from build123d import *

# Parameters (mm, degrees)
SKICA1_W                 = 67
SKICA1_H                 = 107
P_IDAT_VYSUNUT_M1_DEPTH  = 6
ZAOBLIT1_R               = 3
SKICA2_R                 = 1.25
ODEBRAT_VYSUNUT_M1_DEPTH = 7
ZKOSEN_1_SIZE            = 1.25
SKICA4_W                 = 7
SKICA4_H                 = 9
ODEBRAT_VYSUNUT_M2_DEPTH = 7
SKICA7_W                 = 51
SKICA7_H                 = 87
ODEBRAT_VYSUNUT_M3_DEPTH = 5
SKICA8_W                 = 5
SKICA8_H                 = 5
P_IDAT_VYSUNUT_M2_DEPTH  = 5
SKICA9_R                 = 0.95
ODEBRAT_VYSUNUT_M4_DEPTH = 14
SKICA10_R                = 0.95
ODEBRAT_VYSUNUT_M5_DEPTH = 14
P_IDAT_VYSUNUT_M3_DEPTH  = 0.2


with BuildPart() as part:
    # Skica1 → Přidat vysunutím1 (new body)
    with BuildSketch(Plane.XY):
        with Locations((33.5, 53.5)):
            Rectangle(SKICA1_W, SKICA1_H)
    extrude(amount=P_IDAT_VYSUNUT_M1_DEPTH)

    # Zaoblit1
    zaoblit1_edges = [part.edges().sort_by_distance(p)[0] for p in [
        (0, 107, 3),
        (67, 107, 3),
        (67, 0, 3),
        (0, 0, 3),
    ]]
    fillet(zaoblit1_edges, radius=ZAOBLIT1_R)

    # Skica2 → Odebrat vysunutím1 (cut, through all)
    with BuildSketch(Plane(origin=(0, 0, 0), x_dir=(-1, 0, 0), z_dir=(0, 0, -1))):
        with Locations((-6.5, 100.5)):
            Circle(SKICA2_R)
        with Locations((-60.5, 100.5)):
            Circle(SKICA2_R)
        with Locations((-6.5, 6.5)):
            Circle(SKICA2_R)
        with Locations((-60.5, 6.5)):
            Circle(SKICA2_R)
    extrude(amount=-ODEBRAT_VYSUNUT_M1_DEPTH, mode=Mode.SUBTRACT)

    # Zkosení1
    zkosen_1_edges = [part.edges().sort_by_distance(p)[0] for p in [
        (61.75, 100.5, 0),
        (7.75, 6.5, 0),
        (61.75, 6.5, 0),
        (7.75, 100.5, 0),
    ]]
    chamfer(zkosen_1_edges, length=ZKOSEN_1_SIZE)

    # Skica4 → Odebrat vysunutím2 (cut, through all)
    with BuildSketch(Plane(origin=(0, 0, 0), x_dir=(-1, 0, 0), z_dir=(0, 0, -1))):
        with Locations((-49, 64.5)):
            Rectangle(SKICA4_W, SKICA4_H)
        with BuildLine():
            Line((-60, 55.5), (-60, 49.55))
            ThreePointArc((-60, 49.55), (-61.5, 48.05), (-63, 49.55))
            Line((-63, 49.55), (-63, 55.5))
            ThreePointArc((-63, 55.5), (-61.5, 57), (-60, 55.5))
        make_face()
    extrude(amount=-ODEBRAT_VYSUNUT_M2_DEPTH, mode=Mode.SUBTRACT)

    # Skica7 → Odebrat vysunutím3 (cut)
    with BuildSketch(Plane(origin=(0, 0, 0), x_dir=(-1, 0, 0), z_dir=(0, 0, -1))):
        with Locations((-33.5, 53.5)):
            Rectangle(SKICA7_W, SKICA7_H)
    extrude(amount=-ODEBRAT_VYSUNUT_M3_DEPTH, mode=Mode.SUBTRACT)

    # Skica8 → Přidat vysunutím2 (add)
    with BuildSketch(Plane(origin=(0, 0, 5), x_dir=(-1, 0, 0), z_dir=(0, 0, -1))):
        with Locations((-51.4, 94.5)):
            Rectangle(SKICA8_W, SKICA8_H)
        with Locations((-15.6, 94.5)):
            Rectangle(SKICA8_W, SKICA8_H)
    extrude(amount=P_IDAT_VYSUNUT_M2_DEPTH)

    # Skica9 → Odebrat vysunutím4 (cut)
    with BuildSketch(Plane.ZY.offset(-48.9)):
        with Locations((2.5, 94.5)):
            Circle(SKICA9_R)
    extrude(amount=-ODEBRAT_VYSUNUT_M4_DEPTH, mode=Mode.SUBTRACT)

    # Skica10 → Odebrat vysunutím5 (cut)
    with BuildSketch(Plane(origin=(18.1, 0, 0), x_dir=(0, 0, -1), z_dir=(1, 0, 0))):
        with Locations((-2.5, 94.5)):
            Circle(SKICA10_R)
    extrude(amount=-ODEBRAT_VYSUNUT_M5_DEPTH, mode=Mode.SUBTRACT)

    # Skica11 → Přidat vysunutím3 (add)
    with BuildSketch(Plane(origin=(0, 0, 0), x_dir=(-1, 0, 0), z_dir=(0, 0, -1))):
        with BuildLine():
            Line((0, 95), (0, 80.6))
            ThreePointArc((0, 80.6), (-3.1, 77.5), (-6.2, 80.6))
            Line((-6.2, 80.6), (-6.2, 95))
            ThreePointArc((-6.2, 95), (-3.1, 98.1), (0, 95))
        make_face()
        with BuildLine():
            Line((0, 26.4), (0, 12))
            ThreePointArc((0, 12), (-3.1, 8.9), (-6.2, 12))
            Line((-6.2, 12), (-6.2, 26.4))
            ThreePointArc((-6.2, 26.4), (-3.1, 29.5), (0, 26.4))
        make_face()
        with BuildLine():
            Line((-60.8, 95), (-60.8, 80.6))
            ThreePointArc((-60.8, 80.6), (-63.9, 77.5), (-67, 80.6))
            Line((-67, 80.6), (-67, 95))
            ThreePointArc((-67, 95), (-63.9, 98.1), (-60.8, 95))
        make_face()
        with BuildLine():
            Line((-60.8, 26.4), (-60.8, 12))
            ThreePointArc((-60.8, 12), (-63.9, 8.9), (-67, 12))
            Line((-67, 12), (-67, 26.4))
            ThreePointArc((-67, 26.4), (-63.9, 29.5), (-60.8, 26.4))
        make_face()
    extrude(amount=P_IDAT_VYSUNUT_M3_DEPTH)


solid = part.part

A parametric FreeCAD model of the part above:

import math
import FreeCAD as App
import Part
import Sketcher

V = App.Vector


def edges_at(feature, points):
    """Names of the edges that pass closest to the given points."""
    edges = feature.Shape.Edges
    near = lambda p: min(range(len(edges)), key=lambda i: edges[i].distToShape(Part.Vertex(*p))[0])
    return sorted({f"Edge{near(p) + 1}" for p in points})

doc = App.newDocument("Part")
body = doc.addObject("PartDesign::Body", "Body")

sketch1 = body.newObject("Sketcher::SketchObject", "Sketch")
sketch1.AttachmentSupport = (doc.getObject("XY_Plane"), [""])
sketch1.MapMode = "FlatFace"
sketch1.addGeometry([
    Part.LineSegment(V(0, 107, 0), V(0, 0, 0)),
    Part.LineSegment(V(0, 0, 0), V(67, 0, 0)),
    Part.LineSegment(V(67, 0, 0), V(67, 107, 0)),
    Part.LineSegment(V(67, 107, 0), V(0, 107, 0)),
], False)
sketch1.addConstraint([
    Sketcher.Constraint("Coincident", 0, 2, 1, 1),
    Sketcher.Constraint("Coincident", 1, 2, 2, 1),
    Sketcher.Constraint("Coincident", 2, 2, 3, 1),
    Sketcher.Constraint("Coincident", 3, 2, 0, 1),
    Sketcher.Constraint("Vertical", 0),
    Sketcher.Constraint("Horizontal", 1),
    Sketcher.Constraint("Vertical", 2),
    Sketcher.Constraint("Horizontal", 3),
    Sketcher.Constraint("Coincident", 0, 2, -1, 1),
    Sketcher.Constraint("DistanceX", 1, 1, 1, 2, 67.0),
    Sketcher.Constraint("DistanceY", 0, 2, 0, 1, 107.0),
])
pad1 = body.newObject("PartDesign::Pad", "Pad")
pad1.Profile = sketch1
pad1.Length = 6
doc.recompute()

fillet = body.newObject("PartDesign::Fillet", "Fillet")
fillet.Base = (pad1, edges_at(pad1, [
    (0, 107, 3),
    (67, 107, 3),
    (67, 0, 3),
    (0, 0, 3),
]))
fillet.Radius = 3

sketch2 = body.newObject("Sketcher::SketchObject", "Sketch001")
sketch2.AttachmentSupport = (doc.getObject("XY_Plane"), [""])
sketch2.MapMode = "FlatFace"
sketch2.addGeometry([
    Part.Circle(V(6.5, 100.5, 0), V(0, 0, 1), 1.25),
    Part.Circle(V(60.5, 100.5, 0), V(0, 0, 1), 1.25),
    Part.Circle(V(6.5, 6.5, 0), V(0, 0, 1), 1.25),
    Part.Circle(V(60.5, 6.5, 0), V(0, 0, 1), 1.25),
], False)
sketch2.addConstraint([
    Sketcher.Constraint("Equal", 0, 1),
    Sketcher.Constraint("Equal", 1, 2),
    Sketcher.Constraint("Equal", 2, 3),
    Sketcher.Constraint("Horizontal", 0, 3, 1, 3),
    Sketcher.Constraint("Horizontal", 2, 3, 3, 3),
    Sketcher.Constraint("Vertical", 0, 3, 2, 3),
    Sketcher.Constraint("Vertical", 1, 3, 3, 3),
    Sketcher.Constraint("Diameter", 0, 2.5),
    Sketcher.Constraint("DistanceX", 0, 3, 1, 3, 54.0),
    Sketcher.Constraint("DistanceY", 2, 3, 0, 3, 94.0),
    Sketcher.Constraint("DistanceX", -1, 1, 0, 3, 6.5),
    Sketcher.Constraint("DistanceY", -1, 1, 0, 3, 100.5),
])
pocket1 = body.newObject("PartDesign::Pocket", "Pocket")
pocket1.Profile = sketch2
pocket1.Type = "ThroughAll"
pocket1.Reversed = True
doc.recompute()

chamfer = body.newObject("PartDesign::Chamfer", "Chamfer")
chamfer.Base = (pocket1, edges_at(pocket1, [
    (61.75, 100.5, 0),
    (7.75, 6.5, 0),
    (61.75, 6.5, 0),
    (7.75, 100.5, 0),
]))
chamfer.Size = 1.25

sketch3 = body.newObject("Sketcher::SketchObject", "Sketch002")
sketch3.AttachmentSupport = (doc.getObject("XY_Plane"), [""])
sketch3.MapMode = "FlatFace"
sketch3.addGeometry([
    Part.LineSegment(V(52.5, 69, 0), V(52.5, 60, 0)),
    Part.LineSegment(V(52.5, 60, 0), V(45.5, 60, 0)),
    Part.LineSegment(V(45.5, 60, 0), V(45.5, 69, 0)),
    Part.LineSegment(V(45.5, 69, 0), V(52.5, 69, 0)),
    Part.LineSegment(V(60, 49.55, 0), V(60, 55.5, 0)),
    Part.ArcOfCircle(Part.Circle(V(61.5, 55.5, 0), V(0, 0, 1), 1.5), math.radians(0), math.radians(180)),
    Part.LineSegment(V(63, 55.5, 0), V(63, 49.55, 0)),
    Part.ArcOfCircle(Part.Circle(V(61.5, 49.55, 0), V(0, 0, 1), 1.5), math.radians(180), math.radians(360)),
], False)
sketch3.addConstraint([
    Sketcher.Constraint("Coincident", 0, 2, 1, 1),
    Sketcher.Constraint("Coincident", 1, 2, 2, 1),
    Sketcher.Constraint("Coincident", 2, 2, 3, 1),
    Sketcher.Constraint("Coincident", 3, 2, 0, 1),
    Sketcher.Constraint("Tangent", 4, 2, 5, 2),
    Sketcher.Constraint("Tangent", 5, 1, 6, 1),
    Sketcher.Constraint("Tangent", 6, 2, 7, 2),
    Sketcher.Constraint("Tangent", 7, 1, 4, 1),
    Sketcher.Constraint("Vertical", 0),
    Sketcher.Constraint("Horizontal", 1),
    Sketcher.Constraint("Vertical", 2),
    Sketcher.Constraint("Horizontal", 3),
    Sketcher.Constraint("Vertical", 4),
    Sketcher.Constraint("Vertical", 6),
    Sketcher.Constraint("Radius", 5, 1.5),
    Sketcher.Constraint("DistanceX", 1, 2, 1, 1, 7.0),
    Sketcher.Constraint("DistanceY", 0, 2, 0, 1, 9.0),
    Sketcher.Constraint("DistanceY", -1, 1, 0, 2, 60.0),
    Sketcher.Constraint("DistanceX", -1, 1, 4, 2, 60.0),
    Sketcher.Constraint("DistanceX", 0, 2, 5, 3, 9.0),
    Sketcher.Constraint("DistanceY", 4, 1, 4, 2, 5.95),
    Sketcher.Constraint("DistanceY", -1, 1, 5, 3, 55.5),
])
pocket2 = body.newObject("PartDesign::Pocket", "Pocket001")
pocket2.Profile = sketch3
pocket2.Type = "ThroughAll"
pocket2.Reversed = True

sketch4 = body.newObject("Sketcher::SketchObject", "Sketch003")
sketch4.AttachmentSupport = (doc.getObject("XY_Plane"), [""])
sketch4.MapMode = "FlatFace"
sketch4.addGeometry([
    Part.LineSegment(V(59, 97, 0), V(59, 10, 0)),
    Part.LineSegment(V(59, 10, 0), V(8, 10, 0)),
    Part.LineSegment(V(8, 10, 0), V(8, 97, 0)),
    Part.LineSegment(V(8, 97, 0), V(59, 97, 0)),
], False)
sketch4.addConstraint([
    Sketcher.Constraint("Coincident", 0, 2, 1, 1),
    Sketcher.Constraint("Coincident", 1, 2, 2, 1),
    Sketcher.Constraint("Coincident", 2, 2, 3, 1),
    Sketcher.Constraint("Coincident", 3, 2, 0, 1),
    Sketcher.Constraint("Vertical", 0),
    Sketcher.Constraint("Horizontal", 1),
    Sketcher.Constraint("Vertical", 2),
    Sketcher.Constraint("Horizontal", 3),
    Sketcher.Constraint("DistanceX", 1, 2, 1, 1, 51.0),
    Sketcher.Constraint("DistanceY", 0, 2, 0, 1, 87.0),
    Sketcher.Constraint("DistanceX", -1, 1, 0, 2, 59.0),
    Sketcher.Constraint("DistanceY", -1, 1, 0, 2, 10.0),
])
pocket3 = body.newObject("PartDesign::Pocket", "Pocket002")
pocket3.Profile = sketch4
pocket3.Length = 5
pocket3.Reversed = True

sketch5 = body.newObject("Sketcher::SketchObject", "Sketch004")
sketch5.AttachmentSupport = (doc.getObject("XY_Plane"), [""])
sketch5.MapMode = "FlatFace"
sketch5.AttachmentOffset = App.Placement(V(0, 0, 5), App.Rotation())
sketch5.addGeometry([
    Part.LineSegment(V(53.9, 97, 0), V(53.9, 92, 0)),
    Part.LineSegment(V(53.9, 92, 0), V(48.9, 92, 0)),
    Part.LineSegment(V(48.9, 92, 0), V(48.9, 97, 0)),
    Part.LineSegment(V(48.9, 97, 0), V(53.9, 97, 0)),
    Part.LineSegment(V(18.1, 97, 0), V(18.1, 92, 0)),
    Part.LineSegment(V(18.1, 92, 0), V(13.1, 92, 0)),
    Part.LineSegment(V(13.1, 92, 0), V(13.1, 97, 0)),
    Part.LineSegment(V(13.1, 97, 0), V(18.1, 97, 0)),
], False)
sketch5.addConstraint([
    Sketcher.Constraint("Coincident", 0, 2, 1, 1),
    Sketcher.Constraint("Coincident", 1, 2, 2, 1),
    Sketcher.Constraint("Coincident", 2, 2, 3, 1),
    Sketcher.Constraint("Coincident", 3, 2, 0, 1),
    Sketcher.Constraint("Coincident", 4, 2, 5, 1),
    Sketcher.Constraint("Coincident", 5, 2, 6, 1),
    Sketcher.Constraint("Coincident", 6, 2, 7, 1),
    Sketcher.Constraint("Coincident", 7, 2, 4, 1),
    Sketcher.Constraint("Vertical", 0),
    Sketcher.Constraint("Horizontal", 1),
    Sketcher.Constraint("Vertical", 2),
    Sketcher.Constraint("Horizontal", 3),
    Sketcher.Constraint("Vertical", 4),
    Sketcher.Constraint("Horizontal", 5),
    Sketcher.Constraint("Vertical", 6),
    Sketcher.Constraint("Horizontal", 7),
    Sketcher.Constraint("Horizontal", 1, 2, 4, 2),
    Sketcher.Constraint("Horizontal", 3, 2, 6, 2),
    Sketcher.Constraint("Equal", 3, 5),
    Sketcher.Constraint("Equal", 7, 0),
    Sketcher.Constraint("DistanceX", 1, 2, 1, 1, 5.0),
    Sketcher.Constraint("DistanceY", -1, 1, 0, 2, 92.0),
    Sketcher.Constraint("DistanceX", -1, 1, 0, 2, 53.9),
    Sketcher.Constraint("DistanceX", -1, 1, 4, 2, 18.1),
])
pad2 = body.newObject("PartDesign::Pad", "Pad001")
pad2.Profile = sketch5
pad2.Length = 5
pad2.Reversed = True

sketch6 = body.newObject("Sketcher::SketchObject", "Sketch005")
sketch6.AttachmentSupport = (doc.getObject("YZ_Plane"), [""])
sketch6.MapMode = "FlatFace"
sketch6.AttachmentOffset = App.Placement(V(0, 0, 48.9), App.Rotation())
sketch6.addGeometry(Part.Circle(V(94.5, 2.5, 0), V(0, 0, 1), 0.95), False)
sketch6.addConstraint([
    Sketcher.Constraint("Diameter", 0, 1.9),
    Sketcher.Constraint("DistanceX", -1, 1, 0, 3, 94.5),
    Sketcher.Constraint("DistanceY", -1, 1, 0, 3, 2.5),
])
pocket4 = body.newObject("PartDesign::Pocket", "Pocket003")
pocket4.Profile = sketch6
pocket4.Length = 14
pocket4.Reversed = True

sketch7 = body.newObject("Sketcher::SketchObject", "Sketch006")
sketch7.AttachmentSupport = (doc.getObject("YZ_Plane"), [""])
sketch7.MapMode = "FlatFace"
sketch7.AttachmentOffset = App.Placement(V(0, 0, 18.1), App.Rotation())
sketch7.addGeometry(Part.Circle(V(94.5, 2.5, 0), V(0, 0, 1), 0.95), False)
sketch7.addConstraint([
    Sketcher.Constraint("Diameter", 0, 1.9),
    Sketcher.Constraint("DistanceX", -1, 1, 0, 3, 94.5),
    Sketcher.Constraint("DistanceY", -1, 1, 0, 3, 2.5),
])
pocket5 = body.newObject("PartDesign::Pocket", "Pocket004")
pocket5.Profile = sketch7
pocket5.Length = 14

sketch8 = body.newObject("Sketcher::SketchObject", "Sketch007")
sketch8.AttachmentSupport = (doc.getObject("XY_Plane"), [""])
sketch8.MapMode = "FlatFace"
sketch8.addGeometry([
    Part.LineSegment(V(0, 80.6, 0), V(0, 95, 0)),
    Part.ArcOfCircle(Part.Circle(V(3.1, 95, 0), V(0, 0, 1), 3.1), math.radians(0), math.radians(180)),
    Part.LineSegment(V(6.2, 95, 0), V(6.2, 80.6, 0)),
    Part.ArcOfCircle(Part.Circle(V(3.1, 80.6, 0), V(0, 0, 1), 3.1), math.radians(180), math.radians(360)),
    Part.LineSegment(V(0, 12, 0), V(0, 26.4, 0)),
    Part.ArcOfCircle(Part.Circle(V(3.1, 26.4, 0), V(0, 0, 1), 3.1), math.radians(0), math.radians(180)),
    Part.LineSegment(V(6.2, 26.4, 0), V(6.2, 12, 0)),
    Part.ArcOfCircle(Part.Circle(V(3.1, 12, 0), V(0, 0, 1), 3.1), math.radians(180), math.radians(360)),
    Part.LineSegment(V(60.8, 80.6, 0), V(60.8, 95, 0)),
    Part.ArcOfCircle(Part.Circle(V(63.9, 95, 0), V(0, 0, 1), 3.1), math.radians(0), math.radians(180)),
    Part.LineSegment(V(67, 95, 0), V(67, 80.6, 0)),
    Part.ArcOfCircle(Part.Circle(V(63.9, 80.6, 0), V(0, 0, 1), 3.1), math.radians(180), math.radians(360)),
    Part.LineSegment(V(60.8, 12, 0), V(60.8, 26.4, 0)),
    Part.ArcOfCircle(Part.Circle(V(63.9, 26.4, 0), V(0, 0, 1), 3.1), math.radians(0), math.radians(180)),
    Part.LineSegment(V(67, 26.4, 0), V(67, 12, 0)),
    Part.ArcOfCircle(Part.Circle(V(63.9, 12, 0), V(0, 0, 1), 3.1), math.radians(180), math.radians(360)),
], False)
sketch8.addConstraint([
    Sketcher.Constraint("Tangent", 0, 2, 1, 2),
    Sketcher.Constraint("Tangent", 1, 1, 2, 1),
    Sketcher.Constraint("Tangent", 2, 2, 3, 2),
    Sketcher.Constraint("Tangent", 3, 1, 0, 1),
    Sketcher.Constraint("Tangent", 4, 2, 5, 2),
    Sketcher.Constraint("Tangent", 5, 1, 6, 1),
    Sketcher.Constraint("Tangent", 6, 2, 7, 2),
    Sketcher.Constraint("Tangent", 7, 1, 4, 1),
    Sketcher.Constraint("Tangent", 8, 2, 9, 2),
    Sketcher.Constraint("Tangent", 9, 1, 10, 1),
    Sketcher.Constraint("Tangent", 10, 2, 11, 2),
    Sketcher.Constraint("Tangent", 11, 1, 8, 1),
    Sketcher.Constraint("Tangent", 12, 2, 13, 2),
    Sketcher.Constraint("Tangent", 13, 1, 14, 1),
    Sketcher.Constraint("Tangent", 14, 2, 15, 2),
    Sketcher.Constraint("Tangent", 15, 1, 12, 1),
    Sketcher.Constraint("Vertical", 0),
    Sketcher.Constraint("Vertical", 2),
    Sketcher.Constraint("Vertical", 4),
    Sketcher.Constraint("Vertical", 6),
    Sketcher.Constraint("Vertical", 8),
    Sketcher.Constraint("Vertical", 10),
    Sketcher.Constraint("Vertical", 12),
    Sketcher.Constraint("Vertical", 14),
    Sketcher.Constraint("Equal", 3, 5),
    Sketcher.Constraint("Equal", 7, 9),
    Sketcher.Constraint("Equal", 11, 13),
    Sketcher.Constraint("PointOnObject", 0, 2, -2),
    Sketcher.Constraint("PointOnObject", 4, 2, -2),
    Sketcher.Constraint("Horizontal", 1, 3, 9, 3),
    Sketcher.Constraint("Horizontal", 3, 3, 11, 3),
    Sketcher.Constraint("Horizontal", 5, 3, 13, 3),
    Sketcher.Constraint("Horizontal", 7, 3, 15, 3),
    Sketcher.Constraint("Vertical", 11, 3, 13, 3),
    Sketcher.Constraint("Equal", 2, 4),
    Sketcher.Constraint("Radius", 1, 3.1),
    Sketcher.Constraint("DistanceY", 0, 1, 0, 2, 14.4),
    Sketcher.Constraint("DistanceY", -1, 1, 1, 3, 95.0),
    Sketcher.Constraint("DistanceY", -1, 1, 7, 3, 12.0),
    Sketcher.Constraint("DistanceX", -1, 1, 9, 1, 67.0),
])
pad3 = body.newObject("PartDesign::Pad", "Pad002")
pad3.Profile = sketch8
pad3.Length = 0.2
pad3.Reversed = True

doc.recompute()
